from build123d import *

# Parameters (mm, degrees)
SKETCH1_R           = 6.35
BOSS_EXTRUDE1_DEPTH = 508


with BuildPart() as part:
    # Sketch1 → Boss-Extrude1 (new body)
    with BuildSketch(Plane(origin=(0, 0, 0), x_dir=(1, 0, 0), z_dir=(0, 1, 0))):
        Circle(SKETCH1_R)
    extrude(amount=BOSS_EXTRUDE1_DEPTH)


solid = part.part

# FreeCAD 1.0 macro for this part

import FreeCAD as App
import Part
import Sketcher

V = App.Vector
Q = App.Units.Quantity

doc = App.newDocument("Part")
params = doc.addObject("Spreadsheet::Sheet", "Params")
for row, (alias, value) in enumerate([
    ("sketch1_diameter", "0.5 in"),
    ("pad1_length", "20 in"),
], start=1):
    params.set(f"A{row}", alias)
    params.set(f"B{row}", "=" + value)
    params.setAlias(f"B{row}", alias)

body = doc.addObject("PartDesign::Body", "Body")

sketch1 = body.newObject("Sketcher::SketchObject", "Sketch")
sketch1.AttachmentSupport = (doc.getObject("XZ_Plane"), [""])
sketch1.MapMode = "FlatFace"
sketch1.addGeometry(Part.Circle(V(0, 0, 0), V(0, 0, 1), 6), False)
sketch1.addConstraint([
    Sketcher.Constraint("Coincident", 0, 3, -1, 1),
    Sketcher.Constraint("Diameter", 0, Q("0.5 in")),
])
sketch1.setExpression("Constraints[1]", "Params.sketch1_diameter")
pad1 = body.newObject("PartDesign::Pad", "Pad")
pad1.Profile = sketch1
pad1.setExpression("Length", "Params.pad1_length")
pad1.Reversed = True

doc.recompute()
